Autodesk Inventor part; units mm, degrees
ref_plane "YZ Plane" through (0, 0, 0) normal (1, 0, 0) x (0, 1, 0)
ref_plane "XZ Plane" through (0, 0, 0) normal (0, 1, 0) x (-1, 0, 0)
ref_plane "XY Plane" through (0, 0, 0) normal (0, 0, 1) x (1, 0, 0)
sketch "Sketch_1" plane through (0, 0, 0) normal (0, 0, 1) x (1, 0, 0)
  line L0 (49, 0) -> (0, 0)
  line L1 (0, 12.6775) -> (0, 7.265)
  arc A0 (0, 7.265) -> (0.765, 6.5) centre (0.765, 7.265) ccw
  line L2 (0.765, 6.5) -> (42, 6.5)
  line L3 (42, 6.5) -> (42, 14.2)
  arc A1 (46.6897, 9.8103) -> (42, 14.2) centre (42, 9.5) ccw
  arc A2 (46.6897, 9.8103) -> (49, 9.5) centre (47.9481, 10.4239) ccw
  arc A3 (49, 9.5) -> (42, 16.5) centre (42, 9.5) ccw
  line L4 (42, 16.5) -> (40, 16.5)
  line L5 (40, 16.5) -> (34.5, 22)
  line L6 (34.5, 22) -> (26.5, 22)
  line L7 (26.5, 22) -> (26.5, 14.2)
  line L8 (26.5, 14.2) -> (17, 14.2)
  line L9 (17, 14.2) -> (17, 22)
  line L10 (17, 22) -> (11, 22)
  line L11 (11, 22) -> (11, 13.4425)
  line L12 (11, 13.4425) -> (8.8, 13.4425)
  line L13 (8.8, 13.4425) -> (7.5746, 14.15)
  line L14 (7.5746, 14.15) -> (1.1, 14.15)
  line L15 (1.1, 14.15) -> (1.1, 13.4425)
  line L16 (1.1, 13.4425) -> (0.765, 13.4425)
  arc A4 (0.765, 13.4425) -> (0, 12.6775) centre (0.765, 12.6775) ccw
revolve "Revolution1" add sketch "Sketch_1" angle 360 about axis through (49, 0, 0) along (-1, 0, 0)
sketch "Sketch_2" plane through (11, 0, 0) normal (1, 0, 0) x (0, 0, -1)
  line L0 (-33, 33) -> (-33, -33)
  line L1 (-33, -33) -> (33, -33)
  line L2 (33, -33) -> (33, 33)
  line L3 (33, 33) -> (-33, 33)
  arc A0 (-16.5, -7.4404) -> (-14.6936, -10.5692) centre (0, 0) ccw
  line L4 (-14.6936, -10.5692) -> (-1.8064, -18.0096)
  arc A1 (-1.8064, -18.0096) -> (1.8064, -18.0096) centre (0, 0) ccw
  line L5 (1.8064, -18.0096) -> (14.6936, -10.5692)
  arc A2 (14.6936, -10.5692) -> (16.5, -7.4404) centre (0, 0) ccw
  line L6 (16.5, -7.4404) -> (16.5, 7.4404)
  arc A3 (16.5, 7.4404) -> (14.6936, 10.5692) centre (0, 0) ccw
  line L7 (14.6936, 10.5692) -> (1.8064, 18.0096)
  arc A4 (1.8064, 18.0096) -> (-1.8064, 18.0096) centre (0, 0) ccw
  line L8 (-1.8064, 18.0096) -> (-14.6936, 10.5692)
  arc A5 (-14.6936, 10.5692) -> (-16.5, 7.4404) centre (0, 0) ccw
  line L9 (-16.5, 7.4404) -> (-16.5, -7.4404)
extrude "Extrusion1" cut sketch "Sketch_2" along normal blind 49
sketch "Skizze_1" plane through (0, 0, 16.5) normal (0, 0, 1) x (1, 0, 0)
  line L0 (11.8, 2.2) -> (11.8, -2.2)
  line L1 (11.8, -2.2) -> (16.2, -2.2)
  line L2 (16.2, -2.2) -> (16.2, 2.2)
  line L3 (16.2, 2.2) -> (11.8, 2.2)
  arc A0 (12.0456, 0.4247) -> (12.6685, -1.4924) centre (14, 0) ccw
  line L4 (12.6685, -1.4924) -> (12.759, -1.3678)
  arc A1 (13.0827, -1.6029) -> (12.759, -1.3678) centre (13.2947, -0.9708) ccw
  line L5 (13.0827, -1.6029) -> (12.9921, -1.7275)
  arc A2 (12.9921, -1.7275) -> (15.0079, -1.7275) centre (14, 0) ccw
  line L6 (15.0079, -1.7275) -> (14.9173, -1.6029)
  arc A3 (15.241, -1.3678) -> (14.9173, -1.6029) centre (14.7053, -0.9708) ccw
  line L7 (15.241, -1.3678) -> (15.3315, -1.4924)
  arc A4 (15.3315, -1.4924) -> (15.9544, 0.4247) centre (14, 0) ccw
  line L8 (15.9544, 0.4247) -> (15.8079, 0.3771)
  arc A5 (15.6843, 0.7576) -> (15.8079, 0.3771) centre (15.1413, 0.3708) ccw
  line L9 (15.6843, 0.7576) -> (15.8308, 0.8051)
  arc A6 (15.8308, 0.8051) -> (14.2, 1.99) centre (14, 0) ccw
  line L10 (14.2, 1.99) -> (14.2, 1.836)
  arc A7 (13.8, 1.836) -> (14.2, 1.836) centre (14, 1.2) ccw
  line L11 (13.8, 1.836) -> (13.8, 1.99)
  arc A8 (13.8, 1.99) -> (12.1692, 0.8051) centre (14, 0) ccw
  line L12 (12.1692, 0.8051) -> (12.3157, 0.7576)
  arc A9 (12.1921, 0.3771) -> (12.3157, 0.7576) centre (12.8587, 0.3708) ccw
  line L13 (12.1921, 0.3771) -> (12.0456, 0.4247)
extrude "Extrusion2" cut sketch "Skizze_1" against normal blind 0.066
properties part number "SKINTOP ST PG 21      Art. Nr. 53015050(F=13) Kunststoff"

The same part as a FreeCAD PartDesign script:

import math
import FreeCAD as App
import Part
import Sketcher
Q = App.Units.Quantity

doc = App.newDocument("Part")
body = doc.addObject("PartDesign::Body", "Body")

# Sketch on XY plane
sketch1 = doc.addObject("Sketcher::SketchObject", "Sketch")
body.addObject(sketch1)
sketch1.AttachmentSupport = (doc.XY_Plane, [""])
sketch1.MapMode = "FlatFace"
sketch1.addGeometry(Part.ArcOfCircle(Part.Circle(App.Vector(0.77, 12.68, 0), App.Vector(0, 0, 1), 0.77), math.radians(90), math.radians(180)), False)
sketch1.addGeometry(Part.LineSegment(App.Vector(0, 12.68, 0), App.Vector(0, 7.26, 0)), False)
sketch1.addGeometry(Part.ArcOfCircle(Part.Circle(App.Vector(0.77, 7.26, 0), App.Vector(0, 0, 1), 0.77), math.radians(180), math.radians(270)), False)
sketch1.addGeometry(Part.LineSegment(App.Vector(0.77, 6.5, 0), App.Vector(42, 6.5, 0)), False)
sketch1.addGeometry(Part.LineSegment(App.Vector(42, 6.5, 0), App.Vector(42, 14.2, 0)), False)
sketch1.addGeometry(Part.ArcOfCircle(Part.Circle(App.Vector(42, 9.5, 0), App.Vector(0, 0, 1), 4.7), math.radians(4), math.radians(90)), False)
sketch1.addGeometry(Part.ArcOfCircle(Part.Circle(App.Vector(47.95, 10.42, 0), App.Vector(0, 0, 1), 1.4), math.radians(-154), math.radians(-41)), False)
sketch1.addGeometry(Part.ArcOfCircle(Part.Circle(App.Vector(42, 9.5, 0), App.Vector(0, 0, 1), 7), math.radians(0), math.radians(90)), False)
sketch1.addGeometry(Part.LineSegment(App.Vector(42, 16.5, 0), App.Vector(40, 16.5, 0)), False)
sketch1.addGeometry(Part.LineSegment(App.Vector(40, 16.5, 0), App.Vector(34.5, 22, 0)), False)
sketch1.addGeometry(Part.LineSegment(App.Vector(34.5, 22, 0), App.Vector(26.5, 22, 0)), False)
sketch1.addGeometry(Part.LineSegment(App.Vector(26.5, 22, 0), App.Vector(26.5, 14.2, 0)), False)
sketch1.addGeometry(Part.LineSegment(App.Vector(26.5, 14.2, 0), App.Vector(17, 14.2, 0)), False)
sketch1.addGeometry(Part.LineSegment(App.Vector(17, 14.2, 0), App.Vector(17, 22, 0)), False)
sketch1.addGeometry(Part.LineSegment(App.Vector(17, 22, 0), App.Vector(11, 22, 0)), False)
sketch1.addGeometry(Part.LineSegment(App.Vector(11, 22, 0), App.Vector(11, 13.44, 0)), False)
sketch1.addGeometry(Part.LineSegment(App.Vector(11, 13.44, 0), App.Vector(8.8, 13.44, 0)), False)
sketch1.addGeometry(Part.LineSegment(App.Vector(8.8, 13.44, 0), App.Vector(7.57, 14.15, 0)), False)
sketch1.addGeometry(Part.LineSegment(App.Vector(7.57, 14.15, 0), App.Vector(1.1, 14.15, 0)), False)
sketch1.addGeometry(Part.LineSegment(App.Vector(1.1, 14.15, 0), App.Vector(1.1, 13.44, 0)), False)
sketch1.addGeometry(Part.LineSegment(App.Vector(1.1, 13.44, 0), App.Vector(0.77, 13.44, 0)), False)
sketch1.addConstraint(Sketcher.Constraint("Tangent", 0, 2, 1, 1))
sketch1.addConstraint(Sketcher.Constraint("Tangent", 1, 2, 2, 1))
sketch1.addConstraint(Sketcher.Constraint("Tangent", 2, 2, 3, 1))
sketch1.addConstraint(Sketcher.Constraint("Coincident", 3, 2, 4, 1))
sketch1.addConstraint(Sketcher.Constraint("Coincident", 4, 2, 5, 2))
sketch1.addConstraint(Sketcher.Constraint("Coincident", 5, 1, 6, 1))
sketch1.addConstraint(Sketcher.Constraint("Coincident", 6, 2, 7, 1))
sketch1.addConstraint(Sketcher.Constraint("Tangent", 7, 2, 8, 1))
sketch1.addConstraint(Sketcher.Constraint("Coincident", 8, 2, 9, 1))
sketch1.addConstraint(Sketcher.Constraint("Coincident", 9, 2, 10, 1))
sketch1.addConstraint(Sketcher.Constraint("Coincident", 10, 2, 11, 1))
sketch1.addConstraint(Sketcher.Constraint("Coincident", 11, 2, 12, 1))
sketch1.addConstraint(Sketcher.Constraint("Coincident", 12, 2, 13, 1))
sketch1.addConstraint(Sketcher.Constraint("Coincident", 13, 2, 14, 1))
sketch1.addConstraint(Sketcher.Constraint("Coincident", 14, 2, 15, 1))
sketch1.addConstraint(Sketcher.Constraint("Coincident", 15, 2, 16, 1))
sketch1.addConstraint(Sketcher.Constraint("Coincident", 16, 2, 17, 1))
sketch1.addConstraint(Sketcher.Constraint("Coincident", 17, 2, 18, 1))
sketch1.addConstraint(Sketcher.Constraint("Coincident", 18, 2, 19, 1))
sketch1.addConstraint(Sketcher.Constraint("Coincident", 19, 2, 20, 1))
sketch1.addConstraint(Sketcher.Constraint("Tangent", 20, 2, 0, 1))
sketch1.addConstraint(Sketcher.Constraint("Vertical", 1))
sketch1.addConstraint(Sketcher.Constraint("Horizontal", 3))
sketch1.addConstraint(Sketcher.Constraint("Vertical", 4))
sketch1.addConstraint(Sketcher.Constraint("Horizontal", 8))
sketch1.addConstraint(Sketcher.Constraint("Horizontal", 10))
sketch1.addConstraint(Sketcher.Constraint("Vertical", 11))
sketch1.addConstraint(Sketcher.Constraint("Horizontal", 12))
sketch1.addConstraint(Sketcher.Constraint("Vertical", 13))
sketch1.addConstraint(Sketcher.Constraint("Horizontal", 14))
sketch1.addConstraint(Sketcher.Constraint("Vertical", 15))
sketch1.addConstraint(Sketcher.Constraint("Horizontal", 16))
sketch1.addConstraint(Sketcher.Constraint("Horizontal", 18))
sketch1.addConstraint(Sketcher.Constraint("Vertical", 19))
sketch1.addConstraint(Sketcher.Constraint("Horizontal", 20))
sketch1.addConstraint(Sketcher.Constraint("Coincident", 7, 3, 5, 3))
sketch1.addConstraint(Sketcher.Constraint("Equal", 0, 2))
sketch1.addConstraint(Sketcher.Constraint("PointOnObject", 0, 2, -2))
sketch1.addConstraint(Sketcher.Constraint("Horizontal", 7, 3, 6, 2))
sketch1.addConstraint(Sketcher.Constraint("Horizontal", 4, 2, 11, 2))
sketch1.addConstraint(Sketcher.Constraint("Horizontal", 10, 2, 13, 2))
sketch1.addConstraint(Sketcher.Constraint("Horizontal", 16, 2, 19, 2))
sketch1.addConstraint(Sketcher.Constraint("Vertical", 7, 3, 3, 2))
sketch1.addConstraint(Sketcher.Constraint("Radius", 7, 7.0))
sketch1.addConstraint(Sketcher.Constraint("Radius", 5, 4.7))
sketch1.addConstraint(Sketcher.Constraint("Radius", 6, 1.4))
sketch1.addConstraint(Sketcher.Constraint("DistanceX", 8, 2, 8, 1, 2.0))
sketch1.addConstraint(Sketcher.Constraint("DistanceX", 10, 2, 10, 1, 8.0))
sketch1.addConstraint(Sketcher.Constraint("DistanceX", 14, 2, 14, 1, 6.0))
sketch1.addConstraint(Sketcher.Constraint("Angle", 9, Q("135 deg")))
sketch1.addConstraint(Sketcher.Constraint("Angle", 17, Q("149.9995 deg")))
sketch1.addConstraint(Sketcher.Constraint("DistanceX", 12, 2, 12, 1, 9.5))
sketch1.addConstraint(Sketcher.Constraint("DistanceX", 16, 2, 16, 1, 2.2))
sketch1.addConstraint(Sketcher.Constraint("DistanceY", 4, 1, 4, 2, 7.7))
sketch1.addConstraint(Sketcher.Constraint("DistanceY", 11, 2, 11, 1, 7.8))
sketch1.addConstraint(Sketcher.Constraint("DistanceX", -1, 1, 5, 3, 42.0))
sketch1.addConstraint(Sketcher.Constraint("DistanceY", -1, 1, 9, 2, 22.0))
sketch1.addConstraint(Sketcher.Constraint("Radius", 0, 0.765))
sketch1.addConstraint(Sketcher.Constraint("DistanceX", -1, 1, 18, 2, 1.1))
sketch1.addConstraint(Sketcher.Constraint("DistanceY", -1, 1, 17, 2, 14.15))
sketch1.addConstraint(Sketcher.Constraint("Distance", 17, 1.415))
sketch1.addConstraint(Sketcher.Constraint("DistanceX", -1, 1, 6, 3, 47.948))
revolution = doc.addObject("PartDesign::Revolution", "Revolution")
body.addObject(revolution)
revolution.Profile = sketch1
revolution.ReferenceAxis = (sketch1, ["H_Axis"])
revolution.Angle = 360

# Sketch on YZ plane
sketch2 = doc.addObject("Sketcher::SketchObject", "Sketch001")
body.addObject(sketch2)
sketch2.AttachmentSupport = (doc.YZ_Plane, [""])
sketch2.MapMode = "FlatFace"
sketch2.AttachmentOffset = App.Placement(App.Vector(0, 0, 11), App.Rotation())
sketch2.addGeometry(Part.LineSegment(App.Vector(33, -33, 0), App.Vector(33, 33, 0)), False)
sketch2.addGeometry(Part.LineSegment(App.Vector(33, 33, 0), App.Vector(-33, 33, 0)), False)
sketch2.addGeometry(Part.LineSegment(App.Vector(-33, 33, 0), App.Vector(-33, -33, 0)), False)
sketch2.addGeometry(Part.LineSegment(App.Vector(-33, -33, 0), App.Vector(33, -33, 0)), False)
sketch2.addGeometry(Part.ArcOfCircle(Part.Circle(App.Vector(0, 0, 0), App.Vector(0, 0, 1), 18.1), math.radians(114.27), math.radians(125.73)), False)
sketch2.addGeometry(Part.LineSegment(App.Vector(-7.4, 16.5, 0), App.Vector(7.4, 16.5, 0)), False)
sketch2.addGeometry(Part.ArcOfCircle(Part.Circle(App.Vector(0, 0, 0), App.Vector(0, 0, 1), 18.1), math.radians(54.27), math.radians(65.73)), False)
sketch2.addGeometry(Part.LineSegment(App.Vector(10.6, 14.7, 0), App.Vector(18, 1.8, 0)), False)
sketch2.addGeometry(Part.ArcOfCircle(Part.Circle(App.Vector(0, 0, 0), App.Vector(0, 0, 1), 18.1), math.radians(-5.73), math.radians(5.73)), False)
sketch2.addGeometry(Part.LineSegment(App.Vector(18, -1.8, 0), App.Vector(10.6, -14.7, 0)), False)
sketch2.addGeometry(Part.ArcOfCircle(Part.Circle(App.Vector(0, 0, 0), App.Vector(0, 0, 1), 18.1), math.radians(-65.73), math.radians(-54.27)), False)
sketch2.addGeometry(Part.LineSegment(App.Vector(7.4, -16.5, 0), App.Vector(-7.4, -16.5, 0)), False)
sketch2.addGeometry(Part.ArcOfCircle(Part.Circle(App.Vector(0, 0, 0), App.Vector(0, 0, 1), 18.1), math.radians(-125.73), math.radians(-114.27)), False)
sketch2.addGeometry(Part.LineSegment(App.Vector(-10.6, -14.7, 0), App.Vector(-18, -1.8, 0)), False)
sketch2.addGeometry(Part.ArcOfCircle(Part.Circle(App.Vector(0, 0, 0), App.Vector(0, 0, 1), 18.1), math.radians(174.27), math.radians(185.73)), False)
sketch2.addGeometry(Part.LineSegment(App.Vector(-18, 1.8, 0), App.Vector(-10.6, 14.7, 0)), False)
sketch2.addConstraint(Sketcher.Constraint("Coincident", 0, 2, 1, 1))
sketch2.addConstraint(Sketcher.Constraint("Coincident", 1, 2, 2, 1))
sketch2.addConstraint(Sketcher.Constraint("Coincident", 2, 2, 3, 1))
sketch2.addConstraint(Sketcher.Constraint("Coincident", 3, 2, 0, 1))
sketch2.addConstraint(Sketcher.Constraint("Coincident", 4, 1, 5, 1))
sketch2.addConstraint(Sketcher.Constraint("Coincident", 5, 2, 6, 2))
sketch2.addConstraint(Sketcher.Constraint("Coincident", 6, 1, 7, 1))
sketch2.addConstraint(Sketcher.Constraint("Coincident", 7, 2, 8, 2))
sketch2.addConstraint(Sketcher.Constraint("Coincident", 8, 1, 9, 1))
sketch2.addConstraint(Sketcher.Constraint("Coincident", 9, 2, 10, 2))
sketch2.addConstraint(Sketcher.Constraint("Coincident", 10, 1, 11, 1))
sketch2.addConstraint(Sketcher.Constraint("Coincident", 11, 2, 12, 2))
sketch2.addConstraint(Sketcher.Constraint("Coincident", 12, 1, 13, 1))
sketch2.addConstraint(Sketcher.Constraint("Coincident", 13, 2, 14, 2))
sketch2.addConstraint(Sketcher.Constraint("Coincident", 14, 1, 15, 1))
sketch2.addConstraint(Sketcher.Constraint("Coincident", 15, 2, 4, 2))
sketch2.addConstraint(Sketcher.Constraint("Vertical", 0))
sketch2.addConstraint(Sketcher.Constraint("Horizontal", 1))
sketch2.addConstraint(Sketcher.Constraint("Vertical", 2))
sketch2.addConstraint(Sketcher.Constraint("Horizontal", 3))
sketch2.addConstraint(Sketcher.Constraint("Horizontal", 5))
sketch2.addConstraint(Sketcher.Constraint("Horizontal", 11))
sketch2.addConstraint(Sketcher.Constraint("Coincident", 4, 3, -1, 1))
sketch2.addConstraint(Sketcher.Constraint("Coincident", 6, 3, -1, 1))
sketch2.addConstraint(Sketcher.Constraint("Coincident", 8, 3, -1, 1))
sketch2.addConstraint(Sketcher.Constraint("Coincident", 10, 3, -1, 1))
sketch2.addConstraint(Sketcher.Constraint("Coincident", 12, 3, -1, 1))
sketch2.addConstraint(Sketcher.Constraint("Coincident", 14, 3, -1, 1))
sketch2.addConstraint(Sketcher.Constraint("Equal", 4, 6))
sketch2.addConstraint(Sketcher.Constraint("Equal", 6, 8))
sketch2.addConstraint(Sketcher.Constraint("Equal", 8, 10))
sketch2.addConstraint(Sketcher.Constraint("Equal", 10, 12))
sketch2.addConstraint(Sketcher.Constraint("Equal", 12, 14))
sketch2.addConstraint(Sketcher.Constraint("Symmetric", 0, 2, 2, 2, -1, 1))
sketch2.addConstraint(Sketcher.Constraint("Parallel", 7, 13))
sketch2.addConstraint(Sketcher.Constraint("Parallel", 9, 15))
sketch2.addConstraint(Sketcher.Constraint("Horizontal", 9, 2, 12, 1))
sketch2.addConstraint(Sketcher.Constraint("Horizontal", 8, 1, 13, 2))
sketch2.addConstraint(Sketcher.Constraint("Horizontal", 7, 2, 14, 1))
sketch2.addConstraint(Sketcher.Constraint("Vertical", 7, 2, 8, 1))
sketch2.addConstraint(Sketcher.Constraint("Vertical", 5, 2, 10, 1))
sketch2.addConstraint(Sketcher.Constraint("Equal", 3, 0))
sketch2.addConstraint(Sketcher.Constraint("Radius", 4, 18.1))
sketch2.addConstraint(Sketcher.Constraint("DistanceX", 1, 2, 1, 1, 66.0))
sketch2.addConstraint(Sketcher.Constraint("Angle", 7, Q("-60 deg")))
sketch2.addConstraint(Sketcher.Constraint("DistanceY", -1, 1, 4, 1, 16.5))
sketch2.addConstraint(Sketcher.Constraint("DistanceY", 9, 2, 7, 2, 16.5))
pocket1 = doc.addObject("PartDesign::Pocket", "Pocket")
body.addObject(pocket1)
pocket1.Profile = sketch2
pocket1.Length = 49
pocket1.Reversed = True

# Sketch on XY plane
sketch3 = doc.addObject("Sketcher::SketchObject", "Sketch002")
body.addObject(sketch3)
sketch3.AttachmentSupport = (doc.XY_Plane, [""])
sketch3.MapMode = "FlatFace"
sketch3.AttachmentOffset = App.Placement(App.Vector(0, 0, 16.5), App.Rotation())
sketch3.addGeometry(Part.LineSegment(App.Vector(16.2, 2.2, 0), App.Vector(11.8, 2.2, 0)), False)
sketch3.addGeometry(Part.LineSegment(App.Vector(11.8, 2.2, 0), App.Vector(11.8, -2.2, 0)), False)
sketch3.addGeometry(Part.LineSegment(App.Vector(11.8, -2.2, 0), App.Vector(16.2, -2.2, 0)), False)
sketch3.addGeometry(Part.LineSegment(App.Vector(16.2, -2.2, 0), App.Vector(16.2, 2.2, 0)), False)
sketch3.addGeometry(Part.ArcOfCircle(Part.Circle(App.Vector(14, 0, 0), App.Vector(0, 0, 1), 2), math.radians(168), math.radians(228)), False)
sketch3.addGeometry(Part.LineSegment(App.Vector(12.05, 0.42, 0), App.Vector(12.19, 0.38, 0)), False)
sketch3.addGeometry(Part.ArcOfCircle(Part.Circle(App.Vector(12.86, 0.37, 0), App.Vector(0, 0, 1), 0.67), math.radians(179), math.radians(505)), False)
sketch3.addGeometry(Part.LineSegment(App.Vector(12.32, 0.76, 0), App.Vector(12.17, 0.81, 0)), False)
sketch3.addGeometry(Part.ArcOfCircle(Part.Circle(App.Vector(14, 0, 0), App.Vector(0, 0, 1), 2), math.radians(96), math.radians(156)), False)
sketch3.addGeometry(Part.LineSegment(App.Vector(13.8, 1.99, 0), App.Vector(13.8, 1.84, 0)), False)
sketch3.addGeometry(Part.ArcOfCircle(Part.Circle(App.Vector(14, 1.2, 0), App.Vector(0, 0, 1), 0.67), math.radians(107), math.radians(433)), False)
sketch3.addGeometry(Part.LineSegment(App.Vector(14.2, 1.84, 0), App.Vector(14.2, 1.99, 0)), False)
sketch3.addGeometry(Part.ArcOfCircle(Part.Circle(App.Vector(14, 0, 0), App.Vector(0, 0, 1), 2), math.radians(24), math.radians(84)), False)
sketch3.addGeometry(Part.LineSegment(App.Vector(15.83, 0.81, 0), App.Vector(15.68, 0.76, 0)), False)
sketch3.addGeometry(Part.ArcOfCircle(Part.Circle(App.Vector(15.14, 0.37, 0), App.Vector(0, 0, 1), 0.67), math.radians(35), math.radians(361)), False)
sketch3.addGeometry(Part.LineSegment(App.Vector(15.81, 0.38, 0), App.Vector(15.95, 0.42, 0)), False)
sketch3.addGeometry(Part.ArcOfCircle(Part.Circle(App.Vector(14, 0, 0), App.Vector(0, 0, 1), 2), math.radians(-48), math.radians(12)), False)
sketch3.addGeometry(Part.LineSegment(App.Vector(15.33, -1.49, 0), App.Vector(15.24, -1.37, 0)), False)
sketch3.addGeometry(Part.ArcOfCircle(Part.Circle(App.Vector(14.71, -0.97, 0), App.Vector(0, 0, 1), 0.67), math.radians(-37), math.radians(289)), False)
sketch3.addGeometry(Part.LineSegment(App.Vector(14.92, -1.6, 0), App.Vector(15.01, -1.73, 0)), False)
sketch3.addGeometry(Part.ArcOfCircle(Part.Circle(App.Vector(14, 0, 0), App.Vector(0, 0, 1), 2), math.radians(-120), math.radians(-60)), False)
sketch3.addGeometry(Part.LineSegment(App.Vector(12.99, -1.73, 0), App.Vector(13.08, -1.6, 0)), False)
sketch3.addGeometry(Part.ArcOfCircle(Part.Circle(App.Vector(13.29, -0.97, 0), App.Vector(0, 0, 1), 0.67), math.radians(-109), math.radians(217)), False)
sketch3.addGeometry(Part.LineSegment(App.Vector(12.76, -1.37, 0), App.Vector(12.67, -1.49, 0)), False)
sketch3.addConstraint(Sketcher.Constraint("Coincident", 0, 2, 1, 1))
sketch3.addConstraint(Sketcher.Constraint("Coincident", 1, 2, 2, 1))
sketch3.addConstraint(Sketcher.Constraint("Coincident", 2, 2, 3, 1))
sketch3.addConstraint(Sketcher.Constraint("Coincident", 3, 2, 0, 1))
sketch3.addConstraint(Sketcher.Constraint("Coincident", 4, 1, 5, 1))
sketch3.addConstraint(Sketcher.Constraint("Coincident", 5, 2, 6, 1))
sketch3.addConstraint(Sketcher.Constraint("Coincident", 6, 2, 7, 1))
sketch3.addConstraint(Sketcher.Constraint("Coincident", 7, 2, 8, 2))
sketch3.addConstraint(Sketcher.Constraint("Coincident", 8, 1, 9, 1))
sketch3.addConstraint(Sketcher.Constraint("Coincident", 9, 2, 10, 1))
sketch3.addConstraint(Sketcher.Constraint("Coincident", 10, 2, 11, 1))
sketch3.addConstraint(Sketcher.Constraint("Coincident", 11, 2, 12, 2))
sketch3.addConstraint(Sketcher.Constraint("Coincident", 12, 1, 13, 1))
sketch3.addConstraint(Sketcher.Constraint("Coincident", 13, 2, 14, 1))
sketch3.addConstraint(Sketcher.Constraint("Coincident", 14, 2, 15, 1))
sketch3.addConstraint(Sketcher.Constraint("Coincident", 15, 2, 16, 2))
sketch3.addConstraint(Sketcher.Constraint("Coincident", 16, 1, 17, 1))
sketch3.addConstraint(Sketcher.Constraint("Coincident", 17, 2, 18, 1))
sketch3.addConstraint(Sketcher.Constraint("Coincident", 18, 2, 19, 1))
sketch3.addConstraint(Sketcher.Constraint("Coincident", 19, 2, 20, 2))
sketch3.addConstraint(Sketcher.Constraint("Coincident", 20, 1, 21, 1))
sketch3.addConstraint(Sketcher.Constraint("Coincident", 21, 2, 22, 1))
sketch3.addConstraint(Sketcher.Constraint("Coincident", 22, 2, 23, 1))
sketch3.addConstraint(Sketcher.Constraint("Coincident", 23, 2, 4, 2))
sketch3.addConstraint(Sketcher.Constraint("Horizontal", 0))
sketch3.addConstraint(Sketcher.Constraint("Vertical", 1))
sketch3.addConstraint(Sketcher.Constraint("Horizontal", 2))
sketch3.addConstraint(Sketcher.Constraint("Vertical", 3))
sketch3.addConstraint(Sketcher.Constraint("Vertical", 9))
sketch3.addConstraint(Sketcher.Constraint("Vertical", 11))
sketch3.addConstraint(Sketcher.Constraint("Coincident", 8, 3, 4, 3))
sketch3.addConstraint(Sketcher.Constraint("Coincident", 12, 3, 4, 3))
sketch3.addConstraint(Sketcher.Constraint("Coincident", 16, 3, 4, 3))
sketch3.addConstraint(Sketcher.Constraint("Coincident", 20, 3, 4, 3))
sketch3.addConstraint(Sketcher.Constraint("Equal", 4, 8))
sketch3.addConstraint(Sketcher.Constraint("Equal", 6, 10))
sketch3.addConstraint(Sketcher.Constraint("Equal", 8, 12))
sketch3.addConstraint(Sketcher.Constraint("Equal", 10, 14))
sketch3.addConstraint(Sketcher.Constraint("Equal", 12, 16))
sketch3.addConstraint(Sketcher.Constraint("Equal", 14, 18))
sketch3.addConstraint(Sketcher.Constraint("Equal", 16, 20))
sketch3.addConstraint(Sketcher.Constraint("Equal", 18, 22))
sketch3.addConstraint(Sketcher.Constraint("PointOnObject", 4, 3, -1))
sketch3.addConstraint(Sketcher.Constraint("Horizontal", 6, 3, 14, 3))
sketch3.addConstraint(Sketcher.Constraint("Horizontal", 18, 3, 22, 3))
sketch3.addConstraint(Sketcher.Constraint("Horizontal", 9, 2, 10, 2))
sketch3.addConstraint(Sketcher.Constraint("Horizontal", 8, 1, 11, 2))
sketch3.addConstraint(Sketcher.Constraint("Horizontal", 7, 2, 12, 1))
sketch3.addConstraint(Sketcher.Constraint("Horizontal", 6, 2, 13, 2))
sketch3.addConstraint(Sketcher.Constraint("Horizontal", 5, 2, 14, 2))
sketch3.addConstraint(Sketcher.Constraint("Horizontal", 4, 1, 15, 2))
sketch3.addConstraint(Sketcher.Constraint("Horizontal", 19, 2, 20, 1))
sketch3.addConstraint(Sketcher.Constraint("Horizontal", 18, 2, 21, 2))
sketch3.addConstraint(Sketcher.Constraint("Horizontal", 17, 2, 22, 2))
sketch3.addConstraint(Sketcher.Constraint("Horizontal", 16, 1, 23, 2))
sketch3.addConstraint(Sketcher.Constraint("Equal", 2, 1))
sketch3.addConstraint(Sketcher.Constraint("Equal", 5, 7))
sketch3.addConstraint(Sketcher.Constraint("Equal", 7, 13))
sketch3.addConstraint(Sketcher.Constraint("Equal", 15, 17))
sketch3.addConstraint(Sketcher.Constraint("Equal", 17, 19))
sketch3.addConstraint(Sketcher.Constraint("Equal", 19, 21))
sketch3.addConstraint(Sketcher.Constraint("Radius", 4, 2.0))
sketch3.addConstraint(Sketcher.Constraint("Angle", 5, Q("-17.9997 deg")))
sketch3.addConstraint(Sketcher.Constraint("DistanceX", 0, 2, 0, 1, 4.4))
sketch3.addConstraint(Sketcher.Constraint("DistanceX", -1, 1, 4, 3, 14.0))
sketch3.addConstraint(Sketcher.Constraint("DistanceY", 10, 3, 0, 2, 1.0))
sketch3.addConstraint(Sketcher.Constraint("DistanceY", -1, 1, 10, 3, 1.2))
sketch3.addConstraint(Sketcher.Constraint("DistanceX", -1, 1, 0, 2, 11.8))
sketch3.addConstraint(Sketcher.Constraint("DistanceX", -1, 1, 8, 1, 13.8))
sketch3.addConstraint(Sketcher.Constraint("Radius", 6, 0.6666))
sketch3.addConstraint(Sketcher.Constraint("DistanceX", 13, 2, 15, 2, 0.27))
sketch3.addConstraint(Sketcher.Constraint("Distance", 5, 0.154))
sketch3.addConstraint(Sketcher.Constraint("DistanceX", -1, 1, 5, 2, 12.192))
sketch3.addConstraint(Sketcher.Constraint("DistanceY", -1, 1, 7, 2, 0.805))
sketch3.addConstraint(Sketcher.Constraint("DistanceX", -1, 1, 17, 2, 15.241))
sketch3.addConstraint(Sketcher.Constraint("DistanceY", 18, 2, -1, 1, 1.603))
sketch3.addConstraint(Sketcher.Constraint("DistanceX", -1, 1, 19, 2, 15.008))
sketch3.addConstraint(Sketcher.Constraint("DistanceX", 18, 3, 14, 3, 0.436))
pocket2 = doc.addObject("PartDesign::Pocket", "Pocket001")
body.addObject(pocket2)
pocket2.Profile = sketch3
pocket2.Length = 0.066

doc.recompute()
